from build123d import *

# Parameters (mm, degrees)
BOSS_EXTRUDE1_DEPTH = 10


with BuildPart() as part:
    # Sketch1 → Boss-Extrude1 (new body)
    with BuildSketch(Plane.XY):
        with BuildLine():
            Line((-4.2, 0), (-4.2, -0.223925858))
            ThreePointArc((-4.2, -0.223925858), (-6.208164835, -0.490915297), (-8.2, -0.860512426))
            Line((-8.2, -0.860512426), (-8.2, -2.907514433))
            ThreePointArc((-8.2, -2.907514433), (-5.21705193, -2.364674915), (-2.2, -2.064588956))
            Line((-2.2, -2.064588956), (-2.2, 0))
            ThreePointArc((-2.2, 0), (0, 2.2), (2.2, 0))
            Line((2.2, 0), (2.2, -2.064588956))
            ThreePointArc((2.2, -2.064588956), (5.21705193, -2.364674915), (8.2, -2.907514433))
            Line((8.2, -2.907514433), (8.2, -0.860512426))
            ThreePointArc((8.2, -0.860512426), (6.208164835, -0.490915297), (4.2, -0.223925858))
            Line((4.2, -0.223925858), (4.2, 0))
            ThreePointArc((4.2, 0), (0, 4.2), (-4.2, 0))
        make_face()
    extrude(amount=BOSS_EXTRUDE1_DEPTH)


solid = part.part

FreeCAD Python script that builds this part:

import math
import FreeCAD as App
import Part
import Sketcher

V = App.Vector

doc = App.newDocument("Part")
params = doc.addObject("Spreadsheet::Sheet", "Params")
for row, (alias, value) in enumerate([
    ("sketch1_radius", "39.5 mm"),
    ("sketch1_radius2", "37.5 mm"),
    ("sketch1_radius3", "2.2 mm"),
    ("sketch1_radius4", "4.2 mm"),
    ("pad1_length", "10 mm"),
], start=1):
    params.set(f"A{row}", alias)
    params.set(f"B{row}", "=" + value)
    params.setAlias(f"B{row}", alias)

body = doc.addObject("PartDesign::Body", "Body")

sketch1 = doc.addObject("Sketcher::SketchObject", "Sketch")
body.addObject(sketch1)
sketch1.AttachmentSupport = (doc.XY_Plane, [""])
sketch1.MapMode = "FlatFace"
sketch1.addGeometry([
    Part.LineSegment(V(-4.2, 0, 0), V(-4.2, -0.223926, 0)),
    Part.ArcOfCircle(Part.Circle(V(0, -39.5, 0), V(0, 0, 1), 39.5), math.radians(96.103748), math.radians(101.981447)),
    Part.LineSegment(V(-8.2, -0.860512, 0), V(-8.2, -2.907514, 0)),
    Part.ArcOfCircle(Part.Circle(V(0, -39.5, 0), V(0, 0, 1), 37.5), math.radians(93.363284), math.radians(102.630732)),
    Part.LineSegment(V(-2.2, -2.064589, 0), V(-2.2, 0, 0)),
    Part.ArcOfCircle(Part.Circle(V(0, 0, 0), V(0, 0, 1), 2.2), math.radians(0), math.radians(180)),
    Part.LineSegment(V(2.2, 0, 0), V(2.2, -2.064589, 0)),
    Part.ArcOfCircle(Part.Circle(V(0, -39.5, 0), V(0, 0, 1), 37.5), math.radians(77.369268), math.radians(86.636716)),
    Part.LineSegment(V(8.2, -2.907514, 0), V(8.2, -0.860512, 0)),
    Part.ArcOfCircle(Part.Circle(V(0, -39.5, 0), V(0, 0, 1), 39.5), math.radians(78.018553), math.radians(83.896252)),
    Part.LineSegment(V(4.2, -0.223926, 0), V(4.2, 0, 0)),
    Part.ArcOfCircle(Part.Circle(V(0, 0, 0), V(0, 0, 1), 4.2), math.radians(0), math.radians(180)),
], False)
sketch1.addConstraint([
    Sketcher.Constraint("Coincident", 0, 2, 1, 1),
    Sketcher.Constraint("Coincident", 1, 2, 2, 1),
    Sketcher.Constraint("Coincident", 2, 2, 3, 2),
    Sketcher.Constraint("Coincident", 3, 1, 4, 1),
    Sketcher.Constraint("Tangent", 4, 2, 5, 2),
    Sketcher.Constraint("Tangent", 5, 1, 6, 1),
    Sketcher.Constraint("Coincident", 6, 2, 7, 2),
    Sketcher.Constraint("Coincident", 7, 1, 8, 1),
    Sketcher.Constraint("Coincident", 8, 2, 9, 1),
    Sketcher.Constraint("Coincident", 9, 2, 10, 1),
    Sketcher.Constraint("Tangent", 10, 2, 11, 1),
    Sketcher.Constraint("Tangent", 11, 2, 0, 1),
    Sketcher.Constraint("Vertical", 0),
    Sketcher.Constraint("Vertical", 2),
    Sketcher.Constraint("Vertical", 4),
    Sketcher.Constraint("Vertical", 6),
    Sketcher.Constraint("Vertical", 8),
    Sketcher.Constraint("Vertical", 10),
    Sketcher.Constraint("Coincident", 5, 3, -1, 1),
    Sketcher.Constraint("Coincident", 11, 3, -1, 1),
    Sketcher.Constraint("Coincident", 3, 3, 1, 3),
    Sketcher.Constraint("Coincident", 7, 3, 1, 3),
    Sketcher.Constraint("Coincident", 9, 3, 1, 3),
    Sketcher.Constraint("Equal", 3, 7),
    Sketcher.Constraint("Equal", 1, 9),
    Sketcher.Constraint("Symmetric", 2, 2, 7, 1, -2),
    Sketcher.Constraint("Radius", 1, 39.5),
    Sketcher.Constraint("Radius", 3, 37.5),
    Sketcher.Constraint("Radius", 5, 2.2),
    Sketcher.Constraint("Radius", 11, 4.2),
    Sketcher.Constraint("DistanceX", 1, 2, 0, 2, 4.0),
    Sketcher.Constraint("DistanceY", 1, 3, -1, 1, 39.5),
])
sketch1.setExpression("Constraints[26]", "Params.sketch1_radius")
sketch1.setExpression("Constraints[27]", "Params.sketch1_radius2")
sketch1.setExpression("Constraints[28]", "Params.sketch1_radius3")
sketch1.setExpression("Constraints[29]", "Params.sketch1_radius4")
pad1 = doc.addObject("PartDesign::Pad", "Pad")
body.addObject(pad1)
pad1.Profile = sketch1
pad1.setExpression("Length", "Params.pad1_length")

doc.recompute()
